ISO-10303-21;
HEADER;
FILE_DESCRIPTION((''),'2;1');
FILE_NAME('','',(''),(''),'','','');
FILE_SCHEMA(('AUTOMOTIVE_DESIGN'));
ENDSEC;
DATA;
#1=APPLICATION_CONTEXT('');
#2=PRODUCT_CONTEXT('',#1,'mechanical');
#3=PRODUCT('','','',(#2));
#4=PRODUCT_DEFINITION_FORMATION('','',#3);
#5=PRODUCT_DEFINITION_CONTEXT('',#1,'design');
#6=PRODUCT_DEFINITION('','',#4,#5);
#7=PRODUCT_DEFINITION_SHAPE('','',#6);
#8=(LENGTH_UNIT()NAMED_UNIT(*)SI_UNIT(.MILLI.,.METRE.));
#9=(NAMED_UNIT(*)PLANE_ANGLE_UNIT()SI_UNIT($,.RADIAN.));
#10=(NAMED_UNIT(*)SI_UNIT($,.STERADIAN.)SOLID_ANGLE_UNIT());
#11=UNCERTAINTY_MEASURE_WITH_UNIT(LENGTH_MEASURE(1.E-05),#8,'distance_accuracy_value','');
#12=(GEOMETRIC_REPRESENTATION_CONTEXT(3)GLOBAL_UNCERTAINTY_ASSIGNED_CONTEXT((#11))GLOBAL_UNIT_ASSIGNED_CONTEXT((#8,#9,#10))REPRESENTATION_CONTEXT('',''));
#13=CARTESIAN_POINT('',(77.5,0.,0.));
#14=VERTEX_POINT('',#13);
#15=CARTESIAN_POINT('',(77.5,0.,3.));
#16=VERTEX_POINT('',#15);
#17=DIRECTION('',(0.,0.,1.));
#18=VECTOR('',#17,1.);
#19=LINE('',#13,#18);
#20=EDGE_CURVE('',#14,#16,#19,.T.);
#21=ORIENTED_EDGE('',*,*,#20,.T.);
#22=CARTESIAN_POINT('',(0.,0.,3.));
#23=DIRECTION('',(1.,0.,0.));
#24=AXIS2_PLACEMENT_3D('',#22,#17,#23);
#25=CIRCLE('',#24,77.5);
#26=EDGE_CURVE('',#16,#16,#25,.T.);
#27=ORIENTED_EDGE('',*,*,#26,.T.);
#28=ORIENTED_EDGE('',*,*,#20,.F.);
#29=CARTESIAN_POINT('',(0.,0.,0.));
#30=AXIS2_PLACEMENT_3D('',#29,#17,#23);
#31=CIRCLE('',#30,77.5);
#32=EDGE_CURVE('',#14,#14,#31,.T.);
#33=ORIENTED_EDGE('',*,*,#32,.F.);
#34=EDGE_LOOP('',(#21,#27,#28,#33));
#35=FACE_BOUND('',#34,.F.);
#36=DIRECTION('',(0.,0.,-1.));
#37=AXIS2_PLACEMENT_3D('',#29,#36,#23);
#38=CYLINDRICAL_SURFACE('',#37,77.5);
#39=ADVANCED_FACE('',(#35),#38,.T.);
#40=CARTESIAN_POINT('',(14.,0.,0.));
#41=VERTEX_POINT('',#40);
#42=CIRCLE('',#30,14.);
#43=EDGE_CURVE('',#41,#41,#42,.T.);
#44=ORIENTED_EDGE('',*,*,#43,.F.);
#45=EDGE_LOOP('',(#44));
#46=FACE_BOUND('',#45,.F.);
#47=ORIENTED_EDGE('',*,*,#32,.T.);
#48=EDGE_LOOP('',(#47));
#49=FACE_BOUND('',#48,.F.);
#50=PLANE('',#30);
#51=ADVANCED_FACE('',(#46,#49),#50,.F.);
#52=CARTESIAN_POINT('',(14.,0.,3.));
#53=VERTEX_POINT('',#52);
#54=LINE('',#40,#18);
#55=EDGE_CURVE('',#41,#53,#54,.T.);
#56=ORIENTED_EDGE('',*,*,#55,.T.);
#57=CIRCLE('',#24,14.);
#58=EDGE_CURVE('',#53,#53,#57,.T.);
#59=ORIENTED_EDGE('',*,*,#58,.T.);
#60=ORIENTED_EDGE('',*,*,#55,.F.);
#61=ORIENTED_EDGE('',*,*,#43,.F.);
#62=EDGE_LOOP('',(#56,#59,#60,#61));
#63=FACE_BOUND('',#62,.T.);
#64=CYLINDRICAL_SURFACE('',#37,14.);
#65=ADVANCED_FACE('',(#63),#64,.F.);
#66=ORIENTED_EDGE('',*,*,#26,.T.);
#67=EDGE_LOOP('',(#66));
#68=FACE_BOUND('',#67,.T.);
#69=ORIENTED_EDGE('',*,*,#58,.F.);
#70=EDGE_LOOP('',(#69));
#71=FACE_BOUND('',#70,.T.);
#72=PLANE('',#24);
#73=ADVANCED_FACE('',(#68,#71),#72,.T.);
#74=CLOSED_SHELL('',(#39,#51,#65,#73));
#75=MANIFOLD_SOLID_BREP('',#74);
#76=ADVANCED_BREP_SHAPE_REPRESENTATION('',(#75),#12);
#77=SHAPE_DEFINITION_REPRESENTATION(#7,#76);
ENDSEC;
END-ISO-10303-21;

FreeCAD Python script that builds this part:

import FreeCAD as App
import Part
import Sketcher
from FreeCAD import Vector
Q = App.Units.Quantity

doc = App.newDocument("Part")
params = doc.addObject("Spreadsheet::Sheet", "Params")
for row, (alias, value) in enumerate([
    ("sketch1_diameter", "28 mm"),
    ("pad1_length", "3 mm"),
    ("sketch2_diameter", "155 mm"),
    ("pad2_length", "3 mm"),
], start=1):
    params.set(f"A{row}", alias)
    params.set(f"B{row}", "=" + value)
    params.setAlias(f"B{row}", alias)

body = doc.addObject("PartDesign::Body", "Body")

sketch1 = body.newObject("Sketcher::SketchObject", "Sketch")
sketch1.AttachmentSupport = (doc.getObject("XY_Plane"), [""])
sketch1.MapMode = "FlatFace"
sketch1.addGeometry(Part.Circle(Vector(0, 0, 0), Vector(0, 0, 1), 14), False)
sketch1.addConstraint(Sketcher.Constraint("Coincident", 0, 3, -1, 1))
sketch1.addConstraint(Sketcher.Constraint("Diameter", 0, Q("28 mm")))
sketch1.setExpression("Constraints[1]", "Params.sketch1_diameter")
pad1 = body.newObject("PartDesign::Pad", "Pad")
pad1.Profile = sketch1
pad1.setExpression("Length", "Params.pad1_length")
body2 = doc.addObject("PartDesign::Body", "Body001")

sketch2 = body2.newObject("Sketcher::SketchObject", "Sketch001")
sketch2.AttachmentSupport = (doc.getObject("XY_Plane001"), [""])
sketch2.MapMode = "FlatFace"
sketch2.addGeometry(Part.Circle(Vector(0, 0, 0), Vector(0, 0, 1), 77.5), False)
sketch2.addConstraint(Sketcher.Constraint("Coincident", 0, 3, -1, 1))
sketch2.addConstraint(Sketcher.Constraint("Diameter", 0, Q("155 mm")))
sketch2.setExpression("Constraints[1]", "Params.sketch2_diameter")
pad2 = body2.newObject("PartDesign::Pad", "Pad001")
pad2.Profile = sketch2
pad2.setExpression("Length", "Params.pad2_length")
doc.recompute()

boolean = body2.newObject("PartDesign::Boolean", "Boolean")
boolean.Type = "Cut"
boolean.addObjects([body])

doc.recompute()
